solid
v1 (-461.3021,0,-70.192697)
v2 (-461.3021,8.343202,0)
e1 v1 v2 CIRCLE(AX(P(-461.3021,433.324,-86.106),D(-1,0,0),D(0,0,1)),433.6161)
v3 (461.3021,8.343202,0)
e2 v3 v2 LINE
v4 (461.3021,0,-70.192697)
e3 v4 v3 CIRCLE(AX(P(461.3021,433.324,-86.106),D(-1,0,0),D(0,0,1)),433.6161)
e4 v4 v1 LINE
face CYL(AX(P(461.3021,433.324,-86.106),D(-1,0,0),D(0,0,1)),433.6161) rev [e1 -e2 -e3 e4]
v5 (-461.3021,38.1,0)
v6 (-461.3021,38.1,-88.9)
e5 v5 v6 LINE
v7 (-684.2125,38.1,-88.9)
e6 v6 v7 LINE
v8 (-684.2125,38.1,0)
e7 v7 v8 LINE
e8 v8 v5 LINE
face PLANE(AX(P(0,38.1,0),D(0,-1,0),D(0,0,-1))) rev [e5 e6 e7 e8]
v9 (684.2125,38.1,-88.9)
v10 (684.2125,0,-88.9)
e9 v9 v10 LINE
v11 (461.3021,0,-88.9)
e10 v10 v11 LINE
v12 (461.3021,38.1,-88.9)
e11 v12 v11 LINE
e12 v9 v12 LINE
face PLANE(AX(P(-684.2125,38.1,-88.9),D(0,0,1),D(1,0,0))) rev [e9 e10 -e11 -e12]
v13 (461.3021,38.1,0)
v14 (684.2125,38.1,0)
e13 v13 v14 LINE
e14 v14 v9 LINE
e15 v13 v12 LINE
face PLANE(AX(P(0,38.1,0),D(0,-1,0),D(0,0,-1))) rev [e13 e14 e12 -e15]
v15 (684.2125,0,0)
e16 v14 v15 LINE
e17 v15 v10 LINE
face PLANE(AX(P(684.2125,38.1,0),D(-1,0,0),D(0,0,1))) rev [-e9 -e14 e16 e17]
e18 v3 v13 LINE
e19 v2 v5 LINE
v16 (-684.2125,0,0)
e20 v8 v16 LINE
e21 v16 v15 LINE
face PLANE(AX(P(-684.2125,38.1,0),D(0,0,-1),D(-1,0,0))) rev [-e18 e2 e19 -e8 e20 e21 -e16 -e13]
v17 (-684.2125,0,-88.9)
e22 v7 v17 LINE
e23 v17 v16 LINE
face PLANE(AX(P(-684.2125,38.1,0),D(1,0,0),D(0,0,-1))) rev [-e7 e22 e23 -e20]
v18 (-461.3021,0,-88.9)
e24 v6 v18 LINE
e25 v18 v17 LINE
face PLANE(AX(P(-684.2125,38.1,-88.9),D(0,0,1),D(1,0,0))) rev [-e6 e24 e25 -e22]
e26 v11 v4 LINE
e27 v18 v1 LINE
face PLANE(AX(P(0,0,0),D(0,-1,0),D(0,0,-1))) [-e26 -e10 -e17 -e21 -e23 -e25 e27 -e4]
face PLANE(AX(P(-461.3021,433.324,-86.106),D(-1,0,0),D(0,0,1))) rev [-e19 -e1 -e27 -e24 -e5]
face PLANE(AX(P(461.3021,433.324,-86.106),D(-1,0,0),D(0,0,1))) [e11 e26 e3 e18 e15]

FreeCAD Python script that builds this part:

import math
import FreeCAD as App
import Part
import Sketcher
from FreeCAD import Vector
Q = App.Units.Quantity


def add_polygon(sketch, points):
    """Adds a closed chain of lines whose ends are joined by coincident constraints."""
    first, n = sketch.GeometryCount, len(points)
    for a, b in zip(points, points[1:] + points[:1]):
        sketch.addGeometry(Part.LineSegment(App.Vector(*a, 0), App.Vector(*b, 0)), False)
    for i in range(n):
        sketch.addConstraint(Sketcher.Constraint("Coincident", first + i, 2, first + (i + 1) % n, 1))

doc = App.newDocument("Part")
body = doc.addObject("PartDesign::Body", "Body")

# Sketch on XZ plane
sketch1 = doc.addObject("Sketcher::SketchObject", "Sketch")
body.addObject(sketch1)
sketch1.AttachmentSupport = (doc.XZ_Plane, [""])
sketch1.MapMode = "FlatFace"
add_polygon(sketch1, [(-684.2125, -88.9), (-684.2125, 0), (684.2125, 0), (684.2125, -88.9)])  # lines 0-3
sketch1.addConstraint([
    Sketcher.Constraint("Vertical", 0),
    Sketcher.Constraint("Horizontal", 1),
    Sketcher.Constraint("Vertical", 2),
    Sketcher.Constraint("Horizontal", 3),
    Sketcher.Constraint("Symmetric", 0, 2, 1, 2, -1, 1),
    Sketcher.Constraint("DistanceY", 0, 1, 0, 2, Q("3.5 in")),
    Sketcher.Constraint("DistanceX", 1, 1, 1, 2, Q("53.875 in")),
])
pad1 = doc.addObject("PartDesign::Pad", "Pad")
body.addObject(pad1)
pad1.Profile = sketch1
pad1.Length = Q("1.5 in")
pad1.Reversed = True

# Sketch on YZ plane
sketch2 = doc.addObject("Sketcher::SketchObject", "Sketch001")
body.addObject(sketch2)
sketch2.AttachmentSupport = (doc.YZ_Plane, [""])
sketch2.MapMode = "FlatFace"
sketch2.addGeometry([
    Part.LineSegment(Vector(0, -88.9, 0), Vector(0, -70.192697, 0)),  # 0
    Part.ArcOfCircle(Part.Circle(Vector(433.324, -86.106, 0), Vector(0, 0, 1), 433.6161), math.radians(168.546267), math.radians(177.896827)),  # 1
    Part.LineSegment(Vector(8.343202, 0, 0), Vector(38.1, 0, 0)),  # 2
    Part.LineSegment(Vector(38.1, 0, 0), Vector(38.1, -88.9, 0)),  # 3
    Part.LineSegment(Vector(38.1, -88.9, 0), Vector(0, -88.9, 0)),  # 4
], False)
sketch2.addConstraint([
    Sketcher.Constraint("Coincident", 0, 2, 1, 2),
    Sketcher.Constraint("Coincident", 1, 1, 2, 1),
    Sketcher.Constraint("Coincident", 2, 2, 3, 1),
    Sketcher.Constraint("Coincident", 3, 2, 4, 1),
    Sketcher.Constraint("Coincident", 4, 2, 0, 1),
    Sketcher.Constraint("Vertical", 0),
    Sketcher.Constraint("Horizontal", 2),
    Sketcher.Constraint("Vertical", 3),
    Sketcher.Constraint("Horizontal", 4),
    Sketcher.Constraint("PointOnObject", 0, 2, -2),
    Sketcher.Constraint("PointOnObject", 2, 2, -1),
    Sketcher.Constraint("DistanceX", 4, 2, 4, 1, Q("1.5 in")),
    Sketcher.Constraint("DistanceY", 3, 2, 3, 1, Q("3.5 in")),
    Sketcher.Constraint("Radius", 1, Q("17.0715 in")),
    Sketcher.Constraint("DistanceX", -1, 1, 1, 3, Q("17.06 in")),
    Sketcher.Constraint("DistanceY", 1, 3, -1, 1, Q("3.39 in")),
])
pocket1 = doc.addObject("PartDesign::Pocket", "Pocket")
body.addObject(pocket1)
pocket1.Profile = sketch2
pocket1.Length = Q("36.323 in")
pocket1.Midplane = True

doc.recompute()
